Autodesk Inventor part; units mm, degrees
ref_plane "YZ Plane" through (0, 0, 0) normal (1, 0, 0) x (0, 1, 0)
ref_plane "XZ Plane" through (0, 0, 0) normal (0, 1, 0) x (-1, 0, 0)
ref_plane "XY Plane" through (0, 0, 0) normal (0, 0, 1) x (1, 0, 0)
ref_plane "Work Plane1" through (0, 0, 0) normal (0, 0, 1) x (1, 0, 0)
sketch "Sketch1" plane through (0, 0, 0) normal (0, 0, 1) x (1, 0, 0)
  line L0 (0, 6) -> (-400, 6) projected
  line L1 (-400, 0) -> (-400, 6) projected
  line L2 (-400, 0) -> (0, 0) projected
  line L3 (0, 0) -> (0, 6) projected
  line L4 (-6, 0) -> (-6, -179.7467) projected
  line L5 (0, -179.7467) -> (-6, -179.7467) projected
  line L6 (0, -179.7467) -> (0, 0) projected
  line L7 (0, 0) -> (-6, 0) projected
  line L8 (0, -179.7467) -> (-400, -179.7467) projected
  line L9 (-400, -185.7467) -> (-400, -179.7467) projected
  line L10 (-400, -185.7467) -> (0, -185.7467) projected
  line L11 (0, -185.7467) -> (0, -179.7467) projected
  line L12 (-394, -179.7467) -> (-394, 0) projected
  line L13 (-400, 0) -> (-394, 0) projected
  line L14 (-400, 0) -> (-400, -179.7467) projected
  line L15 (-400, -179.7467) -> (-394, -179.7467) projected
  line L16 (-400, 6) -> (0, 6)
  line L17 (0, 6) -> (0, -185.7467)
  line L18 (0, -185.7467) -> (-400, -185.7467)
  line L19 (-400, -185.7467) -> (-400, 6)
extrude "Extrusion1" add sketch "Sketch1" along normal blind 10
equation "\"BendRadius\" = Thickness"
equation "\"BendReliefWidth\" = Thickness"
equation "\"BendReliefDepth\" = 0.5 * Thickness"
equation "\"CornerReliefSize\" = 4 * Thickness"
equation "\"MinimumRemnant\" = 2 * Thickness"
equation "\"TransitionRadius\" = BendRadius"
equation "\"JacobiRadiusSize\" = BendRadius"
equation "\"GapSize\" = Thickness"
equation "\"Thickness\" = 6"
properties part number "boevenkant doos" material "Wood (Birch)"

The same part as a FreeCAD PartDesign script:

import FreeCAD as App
import Part
import Sketcher

V = App.Vector
Q = App.Units.Quantity

doc = App.newDocument("Part")
body = doc.addObject("PartDesign::Body", "Body")

# Sketch on XY plane
sketch1 = body.newObject("Sketcher::SketchObject", "Sketch")
sketch1.AttachmentSupport = (doc.getObject("XY_Plane"), [""])
sketch1.MapMode = "FlatFace"
sketch1.addGeometry(Part.LineSegment(V(0, 6, 0), V(-400, 6, 0)), False)
sketch1.addGeometry(Part.LineSegment(V(-400, 6, 0), V(-400, -186, 0)), False)
sketch1.addGeometry(Part.LineSegment(V(-400, -186, 0), V(0, -186, 0)), False)
sketch1.addGeometry(Part.LineSegment(V(0, -186, 0), V(0, 6, 0)), False)
sketch1.addConstraint(Sketcher.Constraint("Coincident", 0, 2, 1, 1))
sketch1.addConstraint(Sketcher.Constraint("Coincident", 1, 2, 2, 1))
sketch1.addConstraint(Sketcher.Constraint("Coincident", 2, 2, 3, 1))
sketch1.addConstraint(Sketcher.Constraint("Coincident", 3, 2, 0, 1))
sketch1.addConstraint(Sketcher.Constraint("Horizontal", 0))
sketch1.addConstraint(Sketcher.Constraint("Vertical", 1))
sketch1.addConstraint(Sketcher.Constraint("Horizontal", 2))
sketch1.addConstraint(Sketcher.Constraint("Vertical", 3))
sketch1.addConstraint(Sketcher.Constraint("PointOnObject", 2, 2, -2))
sketch1.addConstraint(Sketcher.Constraint("DistanceX", 0, 2, 0, 1, Q("400 mm")))
sketch1.addConstraint(Sketcher.Constraint("DistanceY", -1, 1, 0, 2, Q("6 mm")))
sketch1.addConstraint(Sketcher.Constraint("DistanceY", 1, 2, 1, 1, Q("191.7467 mm")))
pad1 = body.newObject("PartDesign::Pad", "Pad")
pad1.Profile = sketch1
pad1.Length = 10

doc.recompute()
